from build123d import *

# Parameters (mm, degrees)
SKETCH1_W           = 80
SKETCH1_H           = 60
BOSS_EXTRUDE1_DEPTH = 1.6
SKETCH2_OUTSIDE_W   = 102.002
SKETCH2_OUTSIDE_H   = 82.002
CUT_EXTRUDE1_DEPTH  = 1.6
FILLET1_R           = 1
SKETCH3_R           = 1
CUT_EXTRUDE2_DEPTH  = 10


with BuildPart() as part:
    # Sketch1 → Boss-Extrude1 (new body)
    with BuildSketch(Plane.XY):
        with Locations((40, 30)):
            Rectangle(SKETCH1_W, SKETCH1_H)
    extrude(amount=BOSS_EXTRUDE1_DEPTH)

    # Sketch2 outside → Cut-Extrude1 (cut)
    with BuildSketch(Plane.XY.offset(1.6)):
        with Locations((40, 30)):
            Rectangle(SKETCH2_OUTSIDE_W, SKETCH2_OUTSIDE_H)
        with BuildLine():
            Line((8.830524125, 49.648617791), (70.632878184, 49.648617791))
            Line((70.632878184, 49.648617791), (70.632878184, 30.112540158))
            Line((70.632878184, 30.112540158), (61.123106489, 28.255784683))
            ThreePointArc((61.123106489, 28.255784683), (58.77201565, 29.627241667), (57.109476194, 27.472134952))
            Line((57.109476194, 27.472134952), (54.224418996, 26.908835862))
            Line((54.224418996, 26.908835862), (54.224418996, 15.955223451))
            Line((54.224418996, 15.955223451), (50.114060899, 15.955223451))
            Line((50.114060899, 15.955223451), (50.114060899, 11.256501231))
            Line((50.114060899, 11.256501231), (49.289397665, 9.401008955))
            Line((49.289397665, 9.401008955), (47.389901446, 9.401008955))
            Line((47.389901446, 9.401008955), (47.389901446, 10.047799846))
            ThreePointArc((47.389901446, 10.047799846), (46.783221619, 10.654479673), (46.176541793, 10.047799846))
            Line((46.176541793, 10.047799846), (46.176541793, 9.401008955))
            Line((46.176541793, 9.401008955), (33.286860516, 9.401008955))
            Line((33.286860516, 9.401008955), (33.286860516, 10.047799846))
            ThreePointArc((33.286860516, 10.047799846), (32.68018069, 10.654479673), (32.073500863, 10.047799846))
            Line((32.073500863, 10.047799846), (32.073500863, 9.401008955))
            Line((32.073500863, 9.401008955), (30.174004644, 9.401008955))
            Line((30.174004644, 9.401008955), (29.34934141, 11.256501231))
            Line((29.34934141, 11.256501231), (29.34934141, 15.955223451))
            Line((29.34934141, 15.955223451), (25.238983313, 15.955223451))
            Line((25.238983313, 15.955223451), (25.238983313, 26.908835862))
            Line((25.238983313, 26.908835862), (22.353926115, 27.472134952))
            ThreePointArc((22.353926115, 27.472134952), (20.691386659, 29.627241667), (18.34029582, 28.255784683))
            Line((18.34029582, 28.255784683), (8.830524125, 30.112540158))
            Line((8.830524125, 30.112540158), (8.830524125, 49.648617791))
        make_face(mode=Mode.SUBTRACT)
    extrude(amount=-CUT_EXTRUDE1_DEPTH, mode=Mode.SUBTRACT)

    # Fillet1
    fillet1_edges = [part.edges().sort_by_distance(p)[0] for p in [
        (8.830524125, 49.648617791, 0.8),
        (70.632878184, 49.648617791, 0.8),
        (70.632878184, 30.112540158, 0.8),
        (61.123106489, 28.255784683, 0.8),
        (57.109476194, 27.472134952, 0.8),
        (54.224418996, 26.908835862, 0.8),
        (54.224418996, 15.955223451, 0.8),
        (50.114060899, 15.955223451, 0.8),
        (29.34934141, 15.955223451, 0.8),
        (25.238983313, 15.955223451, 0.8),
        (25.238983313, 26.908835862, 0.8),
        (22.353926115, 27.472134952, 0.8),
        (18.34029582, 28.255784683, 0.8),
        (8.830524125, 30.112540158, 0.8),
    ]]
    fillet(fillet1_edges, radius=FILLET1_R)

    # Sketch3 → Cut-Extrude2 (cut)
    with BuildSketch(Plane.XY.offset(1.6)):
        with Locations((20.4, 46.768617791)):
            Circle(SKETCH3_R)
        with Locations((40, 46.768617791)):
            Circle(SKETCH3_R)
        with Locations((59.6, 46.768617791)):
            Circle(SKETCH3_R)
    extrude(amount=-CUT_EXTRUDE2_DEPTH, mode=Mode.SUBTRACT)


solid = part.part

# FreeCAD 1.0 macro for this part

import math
import FreeCAD as App
import Part
import Sketcher
from FreeCAD import Vector
Q = App.Units.Quantity


def edges_at(feature, points):
    """Names of the edges that pass closest to the given points."""
    edges = feature.Shape.Edges
    near = lambda p: min(range(len(edges)), key=lambda i: edges[i].distToShape(Part.Vertex(*p))[0])
    return sorted({f"Edge{near(p) + 1}" for p in points})


def add_polygon(sketch, points):
    """Adds a closed chain of lines whose ends are joined by coincident constraints."""
    first, n = sketch.GeometryCount, len(points)
    for a, b in zip(points, points[1:] + points[:1]):
        sketch.addGeometry(Part.LineSegment(App.Vector(*a, 0), App.Vector(*b, 0)), False)
    for i in range(n):
        sketch.addConstraint(Sketcher.Constraint("Coincident", first + i, 2, first + (i + 1) % n, 1))

doc = App.newDocument("Part")
body = doc.addObject("PartDesign::Body", "Body")

# Sketch on XY plane
sketch1 = body.newObject("Sketcher::SketchObject", "Sketch")
sketch1.AttachmentSupport = (doc.getObject("XY_Plane"), [""])
sketch1.MapMode = "FlatFace"
add_polygon(sketch1, [(0, 60), (0, 0), (80, 0), (80, 60)])  # lines 0-3
sketch1.addConstraint(Sketcher.Constraint("Vertical", 0))
sketch1.addConstraint(Sketcher.Constraint("Horizontal", 1))
sketch1.addConstraint(Sketcher.Constraint("Vertical", 2))
sketch1.addConstraint(Sketcher.Constraint("Horizontal", 3))
sketch1.addConstraint(Sketcher.Constraint("Coincident", 0, 2, -1, 1))
sketch1.addConstraint(Sketcher.Constraint("DistanceX", 1, 1, 1, 2, Q("80 mm")))
sketch1.addConstraint(Sketcher.Constraint("DistanceY", 0, 2, 0, 1, Q("60 mm")))
pad1 = body.newObject("PartDesign::Pad", "Pad")
pad1.Profile = sketch1
pad1.Length = 1.6

# Sketch on XY plane
sketch2 = body.newObject("Sketcher::SketchObject", "Sketch001")
sketch2.AttachmentSupport = (doc.getObject("XY_Plane"), [""])
sketch2.MapMode = "FlatFace"
sketch2.AttachmentOffset = App.Placement(Vector(0, 0, 1.6), App.Rotation())
add_polygon(sketch2, [(-11, 71), (-11, -11), (91, -11), (91, 71)])  # lines 0-3
sketch2.addGeometry(Part.LineSegment(Vector(8.8, 30.1, 0), Vector(8.8, 49.6, 0)), False)  # 4
sketch2.addGeometry(Part.LineSegment(Vector(8.8, 49.6, 0), Vector(70.6, 49.6, 0)), False)  # 5
sketch2.addGeometry(Part.LineSegment(Vector(70.6, 49.6, 0), Vector(70.6, 30.1, 0)), False)  # 6
sketch2.addGeometry(Part.LineSegment(Vector(70.6, 30.1, 0), Vector(61.1, 28.3, 0)), False)  # 7
sketch2.addGeometry(Part.ArcOfCircle(Part.Circle(Vector(59.2, 27.6, 0), Vector(0, 0, 1), 2.1), math.radians(18), math.radians(184)), False)  # 8
sketch2.addGeometry(Part.LineSegment(Vector(57.1, 27.5, 0), Vector(54.2, 26.9, 0)), False)  # 9
sketch2.addGeometry(Part.LineSegment(Vector(54.2, 26.9, 0), Vector(54.2, 16, 0)), False)  # 10
sketch2.addGeometry(Part.LineSegment(Vector(54.2, 16, 0), Vector(50.1, 16, 0)), False)  # 11
sketch2.addGeometry(Part.LineSegment(Vector(50.1, 16, 0), Vector(50.1, 11.3, 0)), False)  # 12
sketch2.addGeometry(Part.LineSegment(Vector(50.1, 11.3, 0), Vector(49.3, 9.4, 0)), False)  # 13
sketch2.addGeometry(Part.LineSegment(Vector(49.3, 9.4, 0), Vector(47.4, 9.4, 0)), False)  # 14
sketch2.addGeometry(Part.LineSegment(Vector(47.4, 9.4, 0), Vector(47.4, 10, 0)), False)  # 15
sketch2.addGeometry(Part.ArcOfCircle(Part.Circle(Vector(46.8, 10, 0), Vector(0, 0, 1), 0.6), math.radians(0), math.radians(180)), False)  # 16
sketch2.addGeometry(Part.LineSegment(Vector(46.2, 10, 0), Vector(46.2, 9.4, 0)), False)  # 17
sketch2.addGeometry(Part.LineSegment(Vector(46.2, 9.4, 0), Vector(33.3, 9.4, 0)), False)  # 18
sketch2.addGeometry(Part.LineSegment(Vector(33.3, 9.4, 0), Vector(33.3, 10, 0)), False)  # 19
sketch2.addGeometry(Part.ArcOfCircle(Part.Circle(Vector(32.7, 10, 0), Vector(0, 0, 1), 0.6), math.radians(0), math.radians(180)), False)  # 20
sketch2.addGeometry(Part.LineSegment(Vector(32.1, 10, 0), Vector(32.1, 9.4, 0)), False)  # 21
sketch2.addGeometry(Part.LineSegment(Vector(32.1, 9.4, 0), Vector(30.2, 9.4, 0)), False)  # 22
sketch2.addGeometry(Part.LineSegment(Vector(30.2, 9.4, 0), Vector(29.3, 11.3, 0)), False)  # 23
sketch2.addGeometry(Part.LineSegment(Vector(29.3, 11.3, 0), Vector(29.3, 16, 0)), False)  # 24
sketch2.addGeometry(Part.LineSegment(Vector(29.3, 16, 0), Vector(25.2, 16, 0)), False)  # 25
sketch2.addGeometry(Part.LineSegment(Vector(25.2, 16, 0), Vector(25.2, 26.9, 0)), False)  # 26
sketch2.addGeometry(Part.LineSegment(Vector(25.2, 26.9, 0), Vector(22.4, 27.5, 0)), False)  # 27
sketch2.addGeometry(Part.ArcOfCircle(Part.Circle(Vector(20.3, 27.6, 0), Vector(0, 0, 1), 2.1), math.radians(-4), math.radians(162)), False)  # 28
sketch2.addGeometry(Part.LineSegment(Vector(18.3, 28.3, 0), Vector(8.8, 30.1, 0)), False)  # 29
sketch2.addConstraint(Sketcher.Constraint("Coincident", 4, 2, 5, 1))
sketch2.addConstraint(Sketcher.Constraint("Coincident", 5, 2, 6, 1))
sketch2.addConstraint(Sketcher.Constraint("Coincident", 6, 2, 7, 1))
sketch2.addConstraint(Sketcher.Constraint("Coincident", 7, 2, 8, 1))
sketch2.addConstraint(Sketcher.Constraint("Coincident", 8, 2, 9, 1))
sketch2.addConstraint(Sketcher.Constraint("Coincident", 9, 2, 10, 1))
sketch2.addConstraint(Sketcher.Constraint("Coincident", 10, 2, 11, 1))
sketch2.addConstraint(Sketcher.Constraint("Coincident", 11, 2, 12, 1))
sketch2.addConstraint(Sketcher.Constraint("Coincident", 12, 2, 13, 1))
sketch2.addConstraint(Sketcher.Constraint("Coincident", 13, 2, 14, 1))
sketch2.addConstraint(Sketcher.Constraint("Coincident", 14, 2, 15, 1))
sketch2.addConstraint(Sketcher.Constraint("Tangent", 15, 2, 16, 1))
sketch2.addConstraint(Sketcher.Constraint("Tangent", 16, 2, 17, 1))
sketch2.addConstraint(Sketcher.Constraint("Coincident", 17, 2, 18, 1))
sketch2.addConstraint(Sketcher.Constraint("Coincident", 18, 2, 19, 1))
sketch2.addConstraint(Sketcher.Constraint("Tangent", 19, 2, 20, 1))
sketch2.addConstraint(Sketcher.Constraint("Tangent", 20, 2, 21, 1))
sketch2.addConstraint(Sketcher.Constraint("Coincident", 21, 2, 22, 1))
sketch2.addConstraint(Sketcher.Constraint("Coincident", 22, 2, 23, 1))
sketch2.addConstraint(Sketcher.Constraint("Coincident", 23, 2, 24, 1))
sketch2.addConstraint(Sketcher.Constraint("Coincident", 24, 2, 25, 1))
sketch2.addConstraint(Sketcher.Constraint("Coincident", 25, 2, 26, 1))
sketch2.addConstraint(Sketcher.Constraint("Coincident", 26, 2, 27, 1))
sketch2.addConstraint(Sketcher.Constraint("Coincident", 27, 2, 28, 1))
sketch2.addConstraint(Sketcher.Constraint("Coincident", 28, 2, 29, 1))
sketch2.addConstraint(Sketcher.Constraint("Coincident", 29, 2, 4, 1))
sketch2.addConstraint(Sketcher.Constraint("Vertical", 0))
sketch2.addConstraint(Sketcher.Constraint("Horizontal", 1))
sketch2.addConstraint(Sketcher.Constraint("Vertical", 2))
sketch2.addConstraint(Sketcher.Constraint("Horizontal", 3))
sketch2.addConstraint(Sketcher.Constraint("Vertical", 4))
sketch2.addConstraint(Sketcher.Constraint("Horizontal", 5))
sketch2.addConstraint(Sketcher.Constraint("Vertical", 6))
sketch2.addConstraint(Sketcher.Constraint("Vertical", 10))
sketch2.addConstraint(Sketcher.Constraint("Horizontal", 11))
sketch2.addConstraint(Sketcher.Constraint("Vertical", 12))
sketch2.addConstraint(Sketcher.Constraint("Horizontal", 14))
sketch2.addConstraint(Sketcher.Constraint("Vertical", 15))
sketch2.addConstraint(Sketcher.Constraint("Vertical", 17))
sketch2.addConstraint(Sketcher.Constraint("Horizontal", 18))
sketch2.addConstraint(Sketcher.Constraint("Vertical", 19))
sketch2.addConstraint(Sketcher.Constraint("Vertical", 21))
sketch2.addConstraint(Sketcher.Constraint("Horizontal", 22))
sketch2.addConstraint(Sketcher.Constraint("Vertical", 24))
sketch2.addConstraint(Sketcher.Constraint("Horizontal", 25))
sketch2.addConstraint(Sketcher.Constraint("Vertical", 26))
sketch2.addConstraint(Sketcher.Constraint("Equal", 16, 20))
sketch2.addConstraint(Sketcher.Constraint("Equal", 8, 28))
sketch2.addConstraint(Sketcher.Constraint("Parallel", 7, 9))
sketch2.addConstraint(Sketcher.Constraint("Parallel", 27, 29))
sketch2.addConstraint(Sketcher.Constraint("Horizontal", 16, 3, 20, 3))
sketch2.addConstraint(Sketcher.Constraint("Horizontal", 8, 3, 28, 3))
sketch2.addConstraint(Sketcher.Constraint("Horizontal", 14, 2, 17, 2))
sketch2.addConstraint(Sketcher.Constraint("Horizontal", 18, 2, 21, 2))
sketch2.addConstraint(Sketcher.Constraint("Horizontal", 12, 2, 23, 2))
sketch2.addConstraint(Sketcher.Constraint("Horizontal", 11, 2, 24, 2))
sketch2.addConstraint(Sketcher.Constraint("Horizontal", 9, 2, 26, 2))
sketch2.addConstraint(Sketcher.Constraint("Horizontal", 8, 2, 27, 2))
sketch2.addConstraint(Sketcher.Constraint("Horizontal", 7, 2, 28, 2))
sketch2.addConstraint(Sketcher.Constraint("Horizontal", 6, 2, 29, 2))
sketch2.addConstraint(Sketcher.Constraint("Equal", 14, 22))
sketch2.addConstraint(Sketcher.Constraint("Equal", 11, 25))
sketch2.addConstraint(Sketcher.Constraint("Equal", 13, 23))
sketch2.addConstraint(Sketcher.Constraint("Equal", 9, 27))
sketch2.addConstraint(Sketcher.Constraint("DistanceX", 1, 1, 1, 2, Q("102.002 mm")))
sketch2.addConstraint(Sketcher.Constraint("DistanceY", 0, 2, 0, 1, Q("82.002 mm")))
sketch2.addConstraint(Sketcher.Constraint("Radius", 16, Q("0.60668 mm")))
sketch2.addConstraint(Sketcher.Constraint("DistanceX", 0, 2, -1, 1, Q("11.001 mm")))
sketch2.addConstraint(Sketcher.Constraint("DistanceY", 0, 2, -1, 1, Q("11.001 mm")))
sketch2.addConstraint(Sketcher.Constraint("Radius", 8, Q("2.061844 mm")))
sketch2.addConstraint(Sketcher.Constraint("DistanceX", 11, 2, 11, 1, Q("4.110358 mm")))
sketch2.addConstraint(Sketcher.Constraint("DistanceX", 18, 2, 18, 1, Q("12.889681 mm")))
sketch2.addConstraint(Sketcher.Constraint("DistanceY", 15, 1, 15, 2, Q("0.646791 mm")))
sketch2.addConstraint(Sketcher.Constraint("DistanceY", -1, 1, 16, 3, Q("10.0478 mm")))
sketch2.addConstraint(Sketcher.Constraint("DistanceY", -1, 1, 12, 2, Q("11.256501 mm")))
sketch2.addConstraint(Sketcher.Constraint("DistanceX", -1, 1, 14, 2, Q("47.389901 mm")))
sketch2.addConstraint(Sketcher.Constraint("DistanceX", 4, 2, 8, 3, Q("50.3366 mm")))
sketch2.addConstraint(Sketcher.Constraint("DistanceX", 8, 2, 6, 2, Q("13.523402 mm")))
sketch2.addConstraint(Sketcher.Constraint("DistanceY", 9, 2, 8, 2, Q("0.563299 mm")))
sketch2.addConstraint(Sketcher.Constraint("Distance", 7, Q("9.689339 mm")))
sketch2.addConstraint(Sketcher.Constraint("DistanceX", 5, 1, 5, 2, Q("61.802354 mm")))
sketch2.addConstraint(Sketcher.Constraint("DistanceX", 14, 2, 14, 1, Q("1.899496 mm")))
sketch2.addConstraint(Sketcher.Constraint("DistanceY", 4, 1, 4, 2, Q("19.536078 mm")))
sketch2.addConstraint(Sketcher.Constraint("DistanceY", 10, 2, 10, 1, Q("10.953612 mm")))
sketch2.addConstraint(Sketcher.Constraint("DistanceY", 12, 2, 12, 1, Q("4.698722 mm")))
sketch2.addConstraint(Sketcher.Constraint("DistanceY", -1, 1, 6, 2, Q("30.11254 mm")))
pocket1 = body.newObject("PartDesign::Pocket", "Pocket")
pocket1.Profile = sketch2
pocket1.Length = 1.6
doc.recompute()

fillet = body.newObject("PartDesign::Fillet", "Fillet")
fillet.Base = (pocket1, edges_at(pocket1, [
    (8.831, 49.649, 0.8),
    (70.633, 49.649, 0.8),
    (70.633, 30.113, 0.8),
    (61.123, 28.256, 0.8),
    (57.109, 27.472, 0.8),
    (54.224, 26.909, 0.8),
    (54.224, 15.955, 0.8),
    (50.114, 15.955, 0.8),
    (29.349, 15.955, 0.8),
    (25.239, 15.955, 0.8),
    (25.239, 26.909, 0.8),
    (22.354, 27.472, 0.8),
    (18.34, 28.256, 0.8),
    (8.831, 30.113, 0.8),
]))
fillet.Radius = 1

# Sketch on XY plane
sketch3 = body.newObject("Sketcher::SketchObject", "Sketch002")
sketch3.AttachmentSupport = (doc.getObject("XY_Plane"), [""])
sketch3.MapMode = "FlatFace"
sketch3.AttachmentOffset = App.Placement(Vector(0, 0, 1.6), App.Rotation())
sketch3.addGeometry(Part.Circle(Vector(20.4, 46.8, 0), Vector(0, 0, 1), 1), False)
sketch3.addGeometry(Part.Circle(Vector(40, 46.8, 0), Vector(0, 0, 1), 1), False)
sketch3.addGeometry(Part.Circle(Vector(59.6, 46.8, 0), Vector(0, 0, 1), 1), False)
sketch3.addConstraint(Sketcher.Constraint("Equal", 0, 1))
sketch3.addConstraint(Sketcher.Constraint("Equal", 1, 2))
sketch3.addConstraint(Sketcher.Constraint("Horizontal", 0, 3, 1, 3))
sketch3.addConstraint(Sketcher.Constraint("Horizontal", 1, 3, 2, 3))
sketch3.addConstraint(Sketcher.Constraint("Diameter", 0, Q("2 mm")))
sketch3.addConstraint(Sketcher.Constraint("DistanceX", -1, 1, 1, 3, Q("40 mm")))
sketch3.addConstraint(Sketcher.Constraint("DistanceX", -1, 1, 0, 3, Q("20.4 mm")))
sketch3.addConstraint(Sketcher.Constraint("DistanceX", -1, 1, 2, 3, Q("59.6 mm")))
sketch3.addConstraint(Sketcher.Constraint("DistanceY", -1, 1, 0, 3, Q("46.768618 mm")))
pocket2 = body.newObject("PartDesign::Pocket", "Pocket001")
pocket2.Profile = sketch3
pocket2.Length = 10

doc.recompute()
